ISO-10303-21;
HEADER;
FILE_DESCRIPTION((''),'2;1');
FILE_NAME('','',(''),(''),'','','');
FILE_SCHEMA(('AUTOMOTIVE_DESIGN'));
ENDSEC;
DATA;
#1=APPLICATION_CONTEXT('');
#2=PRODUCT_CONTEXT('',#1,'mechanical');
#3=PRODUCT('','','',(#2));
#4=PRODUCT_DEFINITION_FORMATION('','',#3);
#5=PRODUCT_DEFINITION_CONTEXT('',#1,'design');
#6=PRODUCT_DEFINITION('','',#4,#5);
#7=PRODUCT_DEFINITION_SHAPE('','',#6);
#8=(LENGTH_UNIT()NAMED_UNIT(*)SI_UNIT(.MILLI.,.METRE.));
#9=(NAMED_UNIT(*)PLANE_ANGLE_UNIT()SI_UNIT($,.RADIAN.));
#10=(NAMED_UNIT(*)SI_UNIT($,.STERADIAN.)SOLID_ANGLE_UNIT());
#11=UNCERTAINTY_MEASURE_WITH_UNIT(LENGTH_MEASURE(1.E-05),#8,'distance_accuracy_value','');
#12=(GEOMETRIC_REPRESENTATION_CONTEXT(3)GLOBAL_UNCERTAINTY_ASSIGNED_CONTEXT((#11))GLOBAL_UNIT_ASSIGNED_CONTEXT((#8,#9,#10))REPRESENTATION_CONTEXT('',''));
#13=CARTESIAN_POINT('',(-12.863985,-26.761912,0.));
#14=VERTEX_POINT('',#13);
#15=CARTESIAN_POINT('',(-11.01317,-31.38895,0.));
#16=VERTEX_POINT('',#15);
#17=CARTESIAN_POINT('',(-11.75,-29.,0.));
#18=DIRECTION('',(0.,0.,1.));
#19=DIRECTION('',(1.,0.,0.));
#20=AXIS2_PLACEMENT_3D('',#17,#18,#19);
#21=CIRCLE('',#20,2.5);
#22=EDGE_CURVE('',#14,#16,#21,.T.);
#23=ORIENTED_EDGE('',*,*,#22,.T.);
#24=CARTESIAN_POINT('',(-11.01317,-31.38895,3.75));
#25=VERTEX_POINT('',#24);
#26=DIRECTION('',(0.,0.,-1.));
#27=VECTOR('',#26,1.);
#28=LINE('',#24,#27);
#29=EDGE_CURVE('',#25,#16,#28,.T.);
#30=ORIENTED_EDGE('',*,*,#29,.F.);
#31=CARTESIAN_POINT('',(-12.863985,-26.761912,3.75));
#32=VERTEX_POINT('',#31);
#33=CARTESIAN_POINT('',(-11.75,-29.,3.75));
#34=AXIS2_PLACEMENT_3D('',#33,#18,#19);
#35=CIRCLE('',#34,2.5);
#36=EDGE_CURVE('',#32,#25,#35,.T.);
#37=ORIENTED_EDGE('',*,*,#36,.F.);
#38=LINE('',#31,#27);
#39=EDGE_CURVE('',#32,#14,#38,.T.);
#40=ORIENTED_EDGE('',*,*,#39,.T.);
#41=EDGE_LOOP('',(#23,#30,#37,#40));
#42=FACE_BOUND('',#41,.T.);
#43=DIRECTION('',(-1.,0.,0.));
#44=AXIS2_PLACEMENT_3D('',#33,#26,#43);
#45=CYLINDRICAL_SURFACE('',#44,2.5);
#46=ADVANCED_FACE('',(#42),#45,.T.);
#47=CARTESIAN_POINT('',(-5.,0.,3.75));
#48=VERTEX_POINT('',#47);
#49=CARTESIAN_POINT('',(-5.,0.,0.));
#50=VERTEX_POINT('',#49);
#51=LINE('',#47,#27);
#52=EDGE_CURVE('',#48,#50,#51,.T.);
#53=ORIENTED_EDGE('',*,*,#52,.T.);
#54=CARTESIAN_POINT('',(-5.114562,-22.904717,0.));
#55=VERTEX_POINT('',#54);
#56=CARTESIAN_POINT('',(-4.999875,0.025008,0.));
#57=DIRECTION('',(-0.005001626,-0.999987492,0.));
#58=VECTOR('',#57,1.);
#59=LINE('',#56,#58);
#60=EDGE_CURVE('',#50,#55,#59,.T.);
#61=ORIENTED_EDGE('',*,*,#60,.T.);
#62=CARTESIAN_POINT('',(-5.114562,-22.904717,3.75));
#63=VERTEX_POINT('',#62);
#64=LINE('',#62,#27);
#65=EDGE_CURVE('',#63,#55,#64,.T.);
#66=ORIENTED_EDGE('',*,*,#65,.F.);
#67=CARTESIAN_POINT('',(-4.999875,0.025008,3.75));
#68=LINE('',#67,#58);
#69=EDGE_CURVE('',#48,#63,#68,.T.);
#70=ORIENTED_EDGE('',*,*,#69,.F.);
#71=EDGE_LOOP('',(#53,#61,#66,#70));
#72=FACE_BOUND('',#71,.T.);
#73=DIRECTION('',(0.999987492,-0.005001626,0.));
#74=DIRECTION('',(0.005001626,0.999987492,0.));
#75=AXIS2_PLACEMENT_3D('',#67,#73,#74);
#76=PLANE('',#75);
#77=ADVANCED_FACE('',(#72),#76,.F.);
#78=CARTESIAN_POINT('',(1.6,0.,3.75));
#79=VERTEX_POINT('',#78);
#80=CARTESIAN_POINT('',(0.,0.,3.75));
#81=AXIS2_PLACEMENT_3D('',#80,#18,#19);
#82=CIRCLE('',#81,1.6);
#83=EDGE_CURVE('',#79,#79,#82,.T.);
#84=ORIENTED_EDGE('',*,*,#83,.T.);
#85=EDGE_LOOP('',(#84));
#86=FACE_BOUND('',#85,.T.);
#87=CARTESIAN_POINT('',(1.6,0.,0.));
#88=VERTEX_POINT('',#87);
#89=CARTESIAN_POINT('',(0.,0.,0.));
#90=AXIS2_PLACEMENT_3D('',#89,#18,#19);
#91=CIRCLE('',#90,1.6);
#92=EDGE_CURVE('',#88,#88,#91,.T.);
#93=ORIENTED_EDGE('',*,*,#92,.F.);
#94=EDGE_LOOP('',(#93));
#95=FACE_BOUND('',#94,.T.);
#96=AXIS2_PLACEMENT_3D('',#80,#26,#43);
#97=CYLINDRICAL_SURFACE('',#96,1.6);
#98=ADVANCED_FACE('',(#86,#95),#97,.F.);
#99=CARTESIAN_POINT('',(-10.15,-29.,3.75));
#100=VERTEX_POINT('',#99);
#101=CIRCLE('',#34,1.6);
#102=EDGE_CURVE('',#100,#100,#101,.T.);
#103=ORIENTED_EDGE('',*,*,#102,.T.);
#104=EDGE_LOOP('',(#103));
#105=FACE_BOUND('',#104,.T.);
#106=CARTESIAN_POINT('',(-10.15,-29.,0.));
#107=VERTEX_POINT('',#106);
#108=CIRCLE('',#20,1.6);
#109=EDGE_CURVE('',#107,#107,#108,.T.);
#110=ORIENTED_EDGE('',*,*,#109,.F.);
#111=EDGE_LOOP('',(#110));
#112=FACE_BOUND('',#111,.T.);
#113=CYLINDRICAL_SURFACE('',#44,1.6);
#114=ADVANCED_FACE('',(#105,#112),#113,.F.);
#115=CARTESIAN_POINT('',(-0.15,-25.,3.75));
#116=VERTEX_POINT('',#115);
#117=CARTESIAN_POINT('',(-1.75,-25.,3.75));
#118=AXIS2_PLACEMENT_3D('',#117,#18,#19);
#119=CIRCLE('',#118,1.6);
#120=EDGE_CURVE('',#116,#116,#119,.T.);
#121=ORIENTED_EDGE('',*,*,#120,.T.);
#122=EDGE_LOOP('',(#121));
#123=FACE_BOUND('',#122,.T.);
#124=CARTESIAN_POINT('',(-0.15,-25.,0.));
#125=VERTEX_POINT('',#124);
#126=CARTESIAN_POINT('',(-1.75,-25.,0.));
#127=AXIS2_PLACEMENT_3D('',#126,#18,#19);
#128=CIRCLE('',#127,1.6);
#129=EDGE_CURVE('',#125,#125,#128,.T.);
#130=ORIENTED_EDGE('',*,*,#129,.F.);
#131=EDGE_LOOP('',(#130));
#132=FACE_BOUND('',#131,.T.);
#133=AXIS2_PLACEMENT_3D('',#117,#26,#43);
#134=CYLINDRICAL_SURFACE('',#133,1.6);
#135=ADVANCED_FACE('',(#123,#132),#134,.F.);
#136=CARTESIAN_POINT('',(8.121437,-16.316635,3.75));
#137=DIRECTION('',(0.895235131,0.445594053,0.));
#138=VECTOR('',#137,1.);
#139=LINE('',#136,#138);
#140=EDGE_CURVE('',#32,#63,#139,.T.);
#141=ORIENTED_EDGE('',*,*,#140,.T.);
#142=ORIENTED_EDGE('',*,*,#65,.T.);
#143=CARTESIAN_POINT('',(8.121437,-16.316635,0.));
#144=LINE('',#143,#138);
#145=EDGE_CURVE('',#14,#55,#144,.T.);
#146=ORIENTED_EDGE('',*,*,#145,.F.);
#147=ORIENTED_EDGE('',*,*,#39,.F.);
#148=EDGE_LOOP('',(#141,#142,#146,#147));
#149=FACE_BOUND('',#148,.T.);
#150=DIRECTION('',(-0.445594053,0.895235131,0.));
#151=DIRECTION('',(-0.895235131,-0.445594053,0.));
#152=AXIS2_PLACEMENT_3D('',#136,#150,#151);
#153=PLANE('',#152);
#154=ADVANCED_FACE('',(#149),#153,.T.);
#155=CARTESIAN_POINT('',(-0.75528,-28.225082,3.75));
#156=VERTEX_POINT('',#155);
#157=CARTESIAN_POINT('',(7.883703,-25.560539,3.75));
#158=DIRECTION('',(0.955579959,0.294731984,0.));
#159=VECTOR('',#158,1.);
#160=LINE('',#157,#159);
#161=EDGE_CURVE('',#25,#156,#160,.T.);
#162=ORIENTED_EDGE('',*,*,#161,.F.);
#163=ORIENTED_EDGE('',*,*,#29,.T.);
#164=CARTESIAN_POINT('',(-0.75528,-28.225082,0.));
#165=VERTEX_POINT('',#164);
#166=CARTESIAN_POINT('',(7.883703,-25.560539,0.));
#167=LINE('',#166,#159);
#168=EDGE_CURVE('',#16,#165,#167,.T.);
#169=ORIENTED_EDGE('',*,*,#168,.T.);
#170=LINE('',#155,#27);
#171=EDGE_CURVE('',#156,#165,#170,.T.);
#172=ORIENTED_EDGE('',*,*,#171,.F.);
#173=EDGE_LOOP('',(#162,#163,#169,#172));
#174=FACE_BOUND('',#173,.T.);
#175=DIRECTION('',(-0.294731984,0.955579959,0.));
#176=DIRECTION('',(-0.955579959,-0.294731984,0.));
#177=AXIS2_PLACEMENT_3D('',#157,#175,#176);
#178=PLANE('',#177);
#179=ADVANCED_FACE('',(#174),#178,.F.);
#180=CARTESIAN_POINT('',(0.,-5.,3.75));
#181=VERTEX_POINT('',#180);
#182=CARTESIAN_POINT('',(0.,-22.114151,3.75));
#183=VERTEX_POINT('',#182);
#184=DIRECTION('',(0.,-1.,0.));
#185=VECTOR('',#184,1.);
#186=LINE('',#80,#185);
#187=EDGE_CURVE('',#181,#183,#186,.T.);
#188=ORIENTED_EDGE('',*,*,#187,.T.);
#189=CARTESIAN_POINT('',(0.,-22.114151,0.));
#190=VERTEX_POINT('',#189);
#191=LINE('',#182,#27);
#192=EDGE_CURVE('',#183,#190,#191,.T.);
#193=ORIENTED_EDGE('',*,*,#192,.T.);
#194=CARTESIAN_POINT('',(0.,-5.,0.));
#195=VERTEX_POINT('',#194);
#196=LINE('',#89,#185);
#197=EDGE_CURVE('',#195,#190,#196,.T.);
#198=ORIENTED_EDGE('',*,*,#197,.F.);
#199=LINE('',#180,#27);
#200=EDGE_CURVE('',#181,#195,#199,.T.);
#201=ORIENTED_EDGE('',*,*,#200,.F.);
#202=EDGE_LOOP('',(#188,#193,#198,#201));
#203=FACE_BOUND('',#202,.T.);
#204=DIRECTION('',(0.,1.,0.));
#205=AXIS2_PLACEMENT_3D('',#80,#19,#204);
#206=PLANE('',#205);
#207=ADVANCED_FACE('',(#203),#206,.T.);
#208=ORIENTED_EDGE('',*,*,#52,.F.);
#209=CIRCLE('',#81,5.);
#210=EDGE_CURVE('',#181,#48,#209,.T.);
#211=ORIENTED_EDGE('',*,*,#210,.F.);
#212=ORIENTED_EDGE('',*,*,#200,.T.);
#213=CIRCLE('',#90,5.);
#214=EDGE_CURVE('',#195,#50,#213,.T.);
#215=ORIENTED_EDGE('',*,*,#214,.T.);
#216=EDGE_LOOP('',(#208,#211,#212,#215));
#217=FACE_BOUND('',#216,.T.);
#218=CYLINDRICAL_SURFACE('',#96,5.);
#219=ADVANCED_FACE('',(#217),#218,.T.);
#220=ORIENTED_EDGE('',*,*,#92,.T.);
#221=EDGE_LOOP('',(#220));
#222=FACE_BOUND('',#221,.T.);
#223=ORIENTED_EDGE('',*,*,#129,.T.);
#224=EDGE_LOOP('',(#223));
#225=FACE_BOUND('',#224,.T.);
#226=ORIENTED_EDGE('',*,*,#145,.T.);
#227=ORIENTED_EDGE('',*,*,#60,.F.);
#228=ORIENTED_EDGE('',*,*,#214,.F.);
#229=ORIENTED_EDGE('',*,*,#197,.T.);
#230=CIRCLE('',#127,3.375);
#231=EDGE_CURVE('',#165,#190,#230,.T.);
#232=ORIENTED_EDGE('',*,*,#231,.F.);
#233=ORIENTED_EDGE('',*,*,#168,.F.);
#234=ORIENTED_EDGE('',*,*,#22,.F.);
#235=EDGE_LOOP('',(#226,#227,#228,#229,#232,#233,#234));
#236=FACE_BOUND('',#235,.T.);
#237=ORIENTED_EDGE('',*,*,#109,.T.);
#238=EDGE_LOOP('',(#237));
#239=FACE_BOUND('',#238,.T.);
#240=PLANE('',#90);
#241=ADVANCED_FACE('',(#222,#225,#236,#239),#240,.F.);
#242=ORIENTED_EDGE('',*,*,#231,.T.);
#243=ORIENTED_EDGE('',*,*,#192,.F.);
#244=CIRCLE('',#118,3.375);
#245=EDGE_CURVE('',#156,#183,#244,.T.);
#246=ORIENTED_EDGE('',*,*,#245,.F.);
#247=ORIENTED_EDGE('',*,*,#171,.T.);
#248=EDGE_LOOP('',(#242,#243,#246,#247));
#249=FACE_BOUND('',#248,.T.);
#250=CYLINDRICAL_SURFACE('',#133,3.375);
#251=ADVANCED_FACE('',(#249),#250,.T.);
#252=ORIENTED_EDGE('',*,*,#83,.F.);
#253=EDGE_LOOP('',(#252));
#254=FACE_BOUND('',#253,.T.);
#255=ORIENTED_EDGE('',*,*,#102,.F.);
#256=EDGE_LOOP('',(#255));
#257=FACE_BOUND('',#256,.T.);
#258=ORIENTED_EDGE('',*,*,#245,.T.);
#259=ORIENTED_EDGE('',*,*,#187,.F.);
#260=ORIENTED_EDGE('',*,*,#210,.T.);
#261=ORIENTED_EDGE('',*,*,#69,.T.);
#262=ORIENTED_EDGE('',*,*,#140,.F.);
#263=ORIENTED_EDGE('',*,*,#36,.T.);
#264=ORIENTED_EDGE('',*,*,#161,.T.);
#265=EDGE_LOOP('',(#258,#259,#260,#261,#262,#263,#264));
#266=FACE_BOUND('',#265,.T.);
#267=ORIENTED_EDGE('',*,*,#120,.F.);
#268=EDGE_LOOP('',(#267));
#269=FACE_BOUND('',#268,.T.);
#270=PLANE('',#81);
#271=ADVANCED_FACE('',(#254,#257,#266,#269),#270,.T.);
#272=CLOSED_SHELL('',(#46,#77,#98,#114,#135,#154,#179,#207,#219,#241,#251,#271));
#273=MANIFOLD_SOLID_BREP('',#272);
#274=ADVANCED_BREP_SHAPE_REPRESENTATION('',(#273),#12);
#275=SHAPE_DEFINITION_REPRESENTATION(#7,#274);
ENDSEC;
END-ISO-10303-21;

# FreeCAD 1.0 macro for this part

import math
import FreeCAD as App
import Part
import Sketcher

V = App.Vector
Q = App.Units.Quantity

doc = App.newDocument("Part")
body = doc.addObject("PartDesign::Body", "Body")

sketch1 = body.newObject("Sketcher::SketchObject", "Sketch")
sketch1.AttachmentSupport = (doc.getObject("XY_Plane"), [""])
sketch1.MapMode = "FlatFace"
sketch1.addGeometry([
    Part.LineSegment(V(0, -22.1, 0), V(0, -5, 0)),
    Part.ArcOfCircle(Part.Circle(V(0, 0, 0), V(0, 0, 1), 5), math.radians(-90), math.radians(180)),
    Part.LineSegment(V(-5, 0, 0), V(-5.1, -22.9, 0)),
    Part.LineSegment(V(-5.1, -22.9, 0), V(-12.9, -26.8, 0)),
    Part.ArcOfCircle(Part.Circle(V(-11.8, -29, 0), V(0, 0, 1), 2.5), math.radians(116), math.radians(287)),
    Part.LineSegment(V(-11, -31.4, 0), V(-0.8, -28.2, 0)),
    Part.ArcOfCircle(Part.Circle(V(-1.8, -25, 0), V(0, 0, 1), 3.4), math.radians(-73), math.radians(59)),
    Part.Circle(V(-11.8, -29, 0), V(0, 0, 1), 1.6),
    Part.Circle(V(-1.8, -25, 0), V(0, 0, 1), 1.6),
    Part.Circle(V(0, 0, 0), V(0, 0, 1), 1.6),
], False)
sketch1.addConstraint([
    Sketcher.Constraint("Coincident", 0, 2, 1, 1),
    Sketcher.Constraint("Coincident", 1, 2, 2, 1),
    Sketcher.Constraint("Coincident", 2, 2, 3, 1),
    Sketcher.Constraint("Tangent", 3, 2, 4, 1),
    Sketcher.Constraint("Tangent", 4, 2, 5, 1),
    Sketcher.Constraint("Tangent", 5, 2, 6, 1),
    Sketcher.Constraint("Coincident", 6, 2, 0, 1),
    Sketcher.Constraint("Vertical", 0),
    Sketcher.Constraint("Coincident", 1, 3, -1, 1),
    Sketcher.Constraint("Coincident", 9, 3, -1, 1),
    Sketcher.Constraint("Coincident", 7, 3, 4, 3),
    Sketcher.Constraint("Coincident", 8, 3, 6, 3),
    Sketcher.Constraint("Equal", 7, 8),
    Sketcher.Constraint("Equal", 8, 9),
    Sketcher.Constraint("PointOnObject", 0, 2, -2),
    Sketcher.Constraint("PointOnObject", 1, 2, -1),
    Sketcher.Constraint("Radius", 1, Q("5 mm")),
    Sketcher.Constraint("Diameter", 7, Q("3.2 mm")),
    Sketcher.Constraint("Radius", 4, Q("2.5 mm")),
    Sketcher.Constraint("DistanceY", 4, 3, -1, 1, Q("29 mm")),
    Sketcher.Constraint("DistanceY", 6, 3, -1, 1, Q("25 mm")),
    Sketcher.Constraint("Radius", 6, Q("3.375 mm")),
    Sketcher.Constraint("DistanceX", 4, 3, 6, 3, Q("10 mm")),
    Sketcher.Constraint("DistanceX", 4, 3, -1, 1, Q("11.75 mm")),
    Sketcher.Constraint("Distance", 3, Q("8.656299 mm")),
    Sketcher.Constraint("Distance", 2, Q("22.905003 mm")),
])
pad1 = body.newObject("PartDesign::Pad", "Pad")
pad1.Profile = sketch1
pad1.Length = 3.75

doc.recompute()
